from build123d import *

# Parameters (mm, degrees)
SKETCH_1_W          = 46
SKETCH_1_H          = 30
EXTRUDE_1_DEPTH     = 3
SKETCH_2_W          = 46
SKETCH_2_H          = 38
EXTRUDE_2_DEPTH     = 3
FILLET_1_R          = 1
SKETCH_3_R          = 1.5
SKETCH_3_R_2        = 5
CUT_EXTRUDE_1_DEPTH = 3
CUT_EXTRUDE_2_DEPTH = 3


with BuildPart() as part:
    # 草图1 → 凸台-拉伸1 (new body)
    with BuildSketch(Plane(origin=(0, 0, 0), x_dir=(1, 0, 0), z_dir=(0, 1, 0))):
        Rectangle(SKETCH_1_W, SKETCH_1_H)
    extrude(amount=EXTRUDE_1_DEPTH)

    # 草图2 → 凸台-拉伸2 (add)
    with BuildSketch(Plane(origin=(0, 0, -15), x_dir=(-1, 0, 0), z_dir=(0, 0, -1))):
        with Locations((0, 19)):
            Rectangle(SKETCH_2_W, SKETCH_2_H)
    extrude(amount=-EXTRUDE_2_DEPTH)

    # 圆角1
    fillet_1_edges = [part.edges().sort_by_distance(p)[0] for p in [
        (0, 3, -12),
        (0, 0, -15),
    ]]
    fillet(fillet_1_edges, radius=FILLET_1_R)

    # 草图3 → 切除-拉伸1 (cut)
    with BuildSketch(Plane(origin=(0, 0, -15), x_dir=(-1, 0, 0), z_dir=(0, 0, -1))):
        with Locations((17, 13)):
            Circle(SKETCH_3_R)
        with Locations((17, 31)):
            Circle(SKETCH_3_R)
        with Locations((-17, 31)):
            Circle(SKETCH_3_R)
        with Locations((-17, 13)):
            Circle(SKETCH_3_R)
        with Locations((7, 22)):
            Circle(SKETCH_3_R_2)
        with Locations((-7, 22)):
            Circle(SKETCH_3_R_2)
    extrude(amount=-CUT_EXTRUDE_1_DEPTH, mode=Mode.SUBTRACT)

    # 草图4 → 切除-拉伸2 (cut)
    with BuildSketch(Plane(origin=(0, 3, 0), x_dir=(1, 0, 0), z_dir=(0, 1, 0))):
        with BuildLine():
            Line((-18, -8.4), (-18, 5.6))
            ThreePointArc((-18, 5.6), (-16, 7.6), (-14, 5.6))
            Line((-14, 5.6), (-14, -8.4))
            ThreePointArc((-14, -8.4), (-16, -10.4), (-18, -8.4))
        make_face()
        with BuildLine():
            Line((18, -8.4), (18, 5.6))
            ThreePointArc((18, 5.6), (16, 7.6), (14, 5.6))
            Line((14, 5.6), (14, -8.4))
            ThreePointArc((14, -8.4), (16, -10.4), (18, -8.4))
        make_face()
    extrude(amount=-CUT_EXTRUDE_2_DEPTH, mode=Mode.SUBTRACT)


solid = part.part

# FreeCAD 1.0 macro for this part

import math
import FreeCAD as App
import Part
import Sketcher


def edges_at(feature, points):
    """Names of the edges that pass closest to the given points."""
    edges = feature.Shape.Edges
    near = lambda p: min(range(len(edges)), key=lambda i: edges[i].distToShape(Part.Vertex(*p))[0])
    return sorted({f"Edge{near(p) + 1}" for p in points})

doc = App.newDocument("Part")
body = doc.addObject("PartDesign::Body", "Body")

sketch1 = doc.addObject("Sketcher::SketchObject", "Sketch")
body.addObject(sketch1)
sketch1.AttachmentSupport = (doc.XZ_Plane, [""])
sketch1.MapMode = "FlatFace"
sketch1.addGeometry([
    Part.LineSegment(App.Vector(-23, -15, 0), App.Vector(-23, 15, 0)),
    Part.LineSegment(App.Vector(-23, 15, 0), App.Vector(23, 15, 0)),
    Part.LineSegment(App.Vector(23, 15, 0), App.Vector(23, -15, 0)),
    Part.LineSegment(App.Vector(23, -15, 0), App.Vector(-23, -15, 0)),
], False)
sketch1.addConstraint([
    Sketcher.Constraint("Coincident", 0, 2, 1, 1),
    Sketcher.Constraint("Coincident", 1, 2, 2, 1),
    Sketcher.Constraint("Coincident", 2, 2, 3, 1),
    Sketcher.Constraint("Coincident", 3, 2, 0, 1),
    Sketcher.Constraint("Vertical", 0),
    Sketcher.Constraint("Horizontal", 1),
    Sketcher.Constraint("Vertical", 2),
    Sketcher.Constraint("Horizontal", 3),
    Sketcher.Constraint("Symmetric", 0, 2, 2, 2, -1, 1),
    Sketcher.Constraint("DistanceX", 1, 1, 1, 2, 46.0),
    Sketcher.Constraint("DistanceY", 0, 1, 0, 2, 30.0),
])
pad1 = doc.addObject("PartDesign::Pad", "Pad")
body.addObject(pad1)
pad1.Profile = sketch1
pad1.Length = 3
pad1.Reversed = True

sketch2 = doc.addObject("Sketcher::SketchObject", "Sketch001")
body.addObject(sketch2)
sketch2.AttachmentSupport = (doc.XY_Plane, [""])
sketch2.MapMode = "FlatFace"
sketch2.AttachmentOffset = App.Placement(App.Vector(0, 0, -15), App.Rotation())
sketch2.addGeometry([
    Part.LineSegment(App.Vector(23, 38, 0), App.Vector(23, 0, 0)),
    Part.LineSegment(App.Vector(23, 0, 0), App.Vector(-23, 0, 0)),
    Part.LineSegment(App.Vector(-23, 0, 0), App.Vector(-23, 38, 0)),
    Part.LineSegment(App.Vector(-23, 38, 0), App.Vector(23, 38, 0)),
], False)
sketch2.addConstraint([
    Sketcher.Constraint("Coincident", 0, 2, 1, 1),
    Sketcher.Constraint("Coincident", 1, 2, 2, 1),
    Sketcher.Constraint("Coincident", 2, 2, 3, 1),
    Sketcher.Constraint("Coincident", 3, 2, 0, 1),
    Sketcher.Constraint("Vertical", 0),
    Sketcher.Constraint("Horizontal", 1),
    Sketcher.Constraint("Vertical", 2),
    Sketcher.Constraint("Horizontal", 3),
    Sketcher.Constraint("Symmetric", 0, 2, 1, 2, -1, 1),
    Sketcher.Constraint("DistanceX", 1, 2, 1, 1, 46.0),
    Sketcher.Constraint("DistanceY", 0, 2, 0, 1, 38.0),
])
pad2 = doc.addObject("PartDesign::Pad", "Pad001")
body.addObject(pad2)
pad2.Profile = sketch2
pad2.Length = 3
doc.recompute()

fillet = doc.addObject("PartDesign::Fillet", "Fillet")
body.addObject(fillet)
fillet.Base = (pad2, edges_at(pad2, [(0, 3, -12), (0, 0, -15)]))
fillet.Radius = 1

sketch3 = doc.addObject("Sketcher::SketchObject", "Sketch002")
body.addObject(sketch3)
sketch3.AttachmentSupport = (doc.XY_Plane, [""])
sketch3.MapMode = "FlatFace"
sketch3.AttachmentOffset = App.Placement(App.Vector(0, 0, -15), App.Rotation())
sketch3.addGeometry([
    Part.Circle(App.Vector(-17, 13, 0), App.Vector(0, 0, 1), 1.5),
    Part.Circle(App.Vector(-17, 31, 0), App.Vector(0, 0, 1), 1.5),
    Part.Circle(App.Vector(17, 31, 0), App.Vector(0, 0, 1), 1.5),
    Part.Circle(App.Vector(17, 13, 0), App.Vector(0, 0, 1), 1.5),
    Part.Circle(App.Vector(-7, 22, 0), App.Vector(0, 0, 1), 5),
    Part.Circle(App.Vector(7, 22, 0), App.Vector(0, 0, 1), 5),
], False)
sketch3.addConstraint([
    Sketcher.Constraint("Equal", 0, 1),
    Sketcher.Constraint("Equal", 1, 2),
    Sketcher.Constraint("Equal", 2, 3),
    Sketcher.Constraint("Equal", 4, 5),
    Sketcher.Constraint("Symmetric", 1, 3, 2, 3, -2),
    Sketcher.Constraint("Symmetric", 0, 3, 3, 3, -2),
    Sketcher.Constraint("Symmetric", 4, 3, 5, 3, -2),
    Sketcher.Constraint("Vertical", 0, 3, 1, 3),
    Sketcher.Constraint("Diameter", 0, 3.0),
    Sketcher.Constraint("Diameter", 4, 10.0),
    Sketcher.Constraint("DistanceX", 0, 3, -1, 1, 17.0),
    Sketcher.Constraint("DistanceY", -1, 1, 0, 3, 13.0),
    Sketcher.Constraint("DistanceY", -1, 1, 1, 3, 31.0),
    Sketcher.Constraint("DistanceX", 4, 3, -1, 1, 7.0),
    Sketcher.Constraint("DistanceY", -1, 1, 4, 3, 22.0),
])
pocket1 = doc.addObject("PartDesign::Pocket", "Pocket")
body.addObject(pocket1)
pocket1.Profile = sketch3
pocket1.Length = 3
pocket1.Reversed = True

sketch4 = doc.addObject("Sketcher::SketchObject", "Sketch003")
body.addObject(sketch4)
sketch4.AttachmentSupport = (doc.XZ_Plane, [""])
sketch4.MapMode = "FlatFace"
sketch4.AttachmentOffset = App.Placement(App.Vector(0, 0, -3), App.Rotation())
sketch4.addGeometry([
    Part.LineSegment(App.Vector(-18, -5.6, 0), App.Vector(-18, 8.4, 0)),
    Part.ArcOfCircle(Part.Circle(App.Vector(-16, 8.4, 0), App.Vector(0, 0, 1), 2), math.radians(0), math.radians(180)),
    Part.LineSegment(App.Vector(-14, 8.4, 0), App.Vector(-14, -5.6, 0)),
    Part.ArcOfCircle(Part.Circle(App.Vector(-16, -5.6, 0), App.Vector(0, 0, 1), 2), math.radians(180), math.radians(360)),
    Part.LineSegment(App.Vector(18, 8.4, 0), App.Vector(18, -5.6, 0)),
    Part.ArcOfCircle(Part.Circle(App.Vector(16, -5.6, 0), App.Vector(0, 0, 1), 2), math.radians(180), math.radians(360)),
    Part.LineSegment(App.Vector(14, -5.6, 0), App.Vector(14, 8.4, 0)),
    Part.ArcOfCircle(Part.Circle(App.Vector(16, 8.4, 0), App.Vector(0, 0, 1), 2), math.radians(0), math.radians(180)),
], False)
sketch4.addConstraint([
    Sketcher.Constraint("Tangent", 0, 2, 1, 2),
    Sketcher.Constraint("Tangent", 1, 1, 2, 1),
    Sketcher.Constraint("Tangent", 2, 2, 3, 2),
    Sketcher.Constraint("Tangent", 3, 1, 0, 1),
    Sketcher.Constraint("Tangent", 4, 2, 5, 2),
    Sketcher.Constraint("Tangent", 5, 1, 6, 1),
    Sketcher.Constraint("Tangent", 6, 2, 7, 2),
    Sketcher.Constraint("Tangent", 7, 1, 4, 1),
    Sketcher.Constraint("Vertical", 0),
    Sketcher.Constraint("Vertical", 2),
    Sketcher.Constraint("Vertical", 4),
    Sketcher.Constraint("Vertical", 6),
    Sketcher.Constraint("Equal", 3, 5),
    Sketcher.Constraint("Symmetric", 3, 3, 5, 3, -2),
    Sketcher.Constraint("Horizontal", 1, 3, 7, 3),
    Sketcher.Constraint("Radius", 1, 2.0),
    Sketcher.Constraint("DistanceY", 0, 1, 0, 2, 14.0),
    Sketcher.Constraint("DistanceX", 1, 3, -1, 1, 16.0),
    Sketcher.Constraint("DistanceY", -1, 1, 1, 3, 8.4),
])
pocket2 = doc.addObject("PartDesign::Pocket", "Pocket001")
body.addObject(pocket2)
pocket2.Profile = sketch4
pocket2.Length = 3
pocket2.Reversed = True

doc.recompute()
